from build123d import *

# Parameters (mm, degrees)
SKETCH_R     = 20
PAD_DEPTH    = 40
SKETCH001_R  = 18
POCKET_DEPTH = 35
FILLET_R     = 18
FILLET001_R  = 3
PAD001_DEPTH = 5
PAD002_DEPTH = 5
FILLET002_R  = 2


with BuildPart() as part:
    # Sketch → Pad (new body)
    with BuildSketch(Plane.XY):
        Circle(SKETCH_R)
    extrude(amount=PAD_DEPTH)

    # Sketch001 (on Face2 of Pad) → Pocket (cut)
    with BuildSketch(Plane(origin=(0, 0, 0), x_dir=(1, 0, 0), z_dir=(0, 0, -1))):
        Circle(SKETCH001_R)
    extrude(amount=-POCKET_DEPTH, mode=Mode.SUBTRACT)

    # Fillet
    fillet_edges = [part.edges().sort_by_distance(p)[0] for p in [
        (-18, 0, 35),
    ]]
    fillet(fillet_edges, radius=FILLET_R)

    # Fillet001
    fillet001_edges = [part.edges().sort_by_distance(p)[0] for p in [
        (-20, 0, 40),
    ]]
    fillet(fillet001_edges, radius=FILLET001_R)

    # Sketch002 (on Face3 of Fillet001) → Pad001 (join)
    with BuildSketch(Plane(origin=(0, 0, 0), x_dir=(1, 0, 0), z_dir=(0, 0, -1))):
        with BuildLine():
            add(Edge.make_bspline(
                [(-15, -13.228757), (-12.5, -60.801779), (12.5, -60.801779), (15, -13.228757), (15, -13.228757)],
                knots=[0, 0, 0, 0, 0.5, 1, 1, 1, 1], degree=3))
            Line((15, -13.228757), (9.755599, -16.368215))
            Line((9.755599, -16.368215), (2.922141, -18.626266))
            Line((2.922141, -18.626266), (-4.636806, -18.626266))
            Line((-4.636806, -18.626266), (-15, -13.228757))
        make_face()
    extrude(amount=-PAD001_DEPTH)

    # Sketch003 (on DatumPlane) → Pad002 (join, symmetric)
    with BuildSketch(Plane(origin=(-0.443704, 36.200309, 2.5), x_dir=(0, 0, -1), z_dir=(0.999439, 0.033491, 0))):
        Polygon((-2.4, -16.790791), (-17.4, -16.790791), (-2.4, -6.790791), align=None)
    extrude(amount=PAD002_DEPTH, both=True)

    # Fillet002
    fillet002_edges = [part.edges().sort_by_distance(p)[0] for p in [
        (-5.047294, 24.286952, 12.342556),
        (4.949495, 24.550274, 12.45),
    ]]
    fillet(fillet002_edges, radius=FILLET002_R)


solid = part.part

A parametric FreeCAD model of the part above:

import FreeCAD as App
import Part
import Sketcher

V = App.Vector


def edges_at(feature, points):
    """Names of the edges that pass closest to the given points."""
    edges = feature.Shape.Edges
    near = lambda p: min(range(len(edges)), key=lambda i: edges[i].distToShape(Part.Vertex(*p))[0])
    return sorted({f"Edge{near(p) + 1}" for p in points})

doc = App.newDocument("Part")
body = doc.addObject("PartDesign::Body", "Body")

# Sketch on XY plane
sketch1 = body.newObject("Sketcher::SketchObject", "Sketch")
sketch1.AttachmentSupport = (doc.getObject("XY_Plane"), [""])
sketch1.MapMode = "FlatFace"
sketch1.addGeometry(Part.Circle(V(0, 0, 0), V(0, 0, 1), 20), False)
sketch1.addConstraint(Sketcher.Constraint("Coincident", 0, 3, -1, 1))
sketch1.addConstraint(Sketcher.Constraint("Diameter", 0, 40.0))
pad1 = body.newObject("PartDesign::Pad", "Pad")
pad1.Profile = sketch1
pad1.Length = 40

# Sketch on XY plane
sketch2 = body.newObject("Sketcher::SketchObject", "Sketch001")
sketch2.AttachmentSupport = (doc.getObject("XY_Plane"), [""])
sketch2.MapMode = "FlatFace"
sketch2.addGeometry(Part.Circle(V(0, 0, 0), V(0, 0, 1), 18), False)
sketch2.addConstraint(Sketcher.Constraint("Coincident", 0, 3, -1, 1))
sketch2.addConstraint(Sketcher.Constraint("Diameter", 0, 36.0))
pocket1 = body.newObject("PartDesign::Pocket", "Pocket")
pocket1.Profile = sketch2
pocket1.Length = 35
pocket1.Reversed = True
doc.recompute()

fillet = body.newObject("PartDesign::Fillet", "Fillet")
fillet.Base = (pocket1, edges_at(pocket1, [(-18, 0, 35)]))
fillet.Radius = 18
doc.recompute()

fillet2 = body.newObject("PartDesign::Fillet", "Fillet001")
fillet2.Base = (fillet, edges_at(fillet, [(-20, 0, 40)]))
fillet2.Radius = 3

# Sketch on XY plane
sketch3 = body.newObject("Sketcher::SketchObject", "Sketch002")
sketch3.AttachmentSupport = (doc.getObject("XY_Plane"), [""])
sketch3.MapMode = "FlatFace"
sketch3.addGeometry(Part.BSplineCurve([V(-15, 13.228757, 0), V(-12.5, 60.801779, 0), V(12.5, 60.801779, 0), V(15, 13.228757, 0), V(15, 13.228757, 0)], [4, 1, 4], [0, 0.5, 1], False, 3, [1, 1, 1, 1, 1], False), False)
sketch3.addGeometry(Part.LineSegment(V(15, 13.228757, 0), V(9.755599, 16.368215, 0)), False)
sketch3.addGeometry(Part.LineSegment(V(9.755599, 16.368215, 0), V(2.922141, 18.626266, 0)), False)
sketch3.addGeometry(Part.LineSegment(V(2.922141, 18.626266, 0), V(-4.636806, 18.626266, 0)), False)
sketch3.addGeometry(Part.LineSegment(V(-4.636806, 18.626266, 0), V(-15, 13.228757, 0)), False)
sketch3.addConstraint(Sketcher.Constraint("Block", 0))
sketch3.addConstraint(Sketcher.Constraint("Coincident", 0, 2, 1, 1))
sketch3.addConstraint(Sketcher.Constraint("Coincident", 1, 2, 2, 1))
sketch3.addConstraint(Sketcher.Constraint("Coincident", 2, 2, 3, 1))
sketch3.addConstraint(Sketcher.Constraint("Coincident", 3, 2, 4, 1))
sketch3.addConstraint(Sketcher.Constraint("Coincident", 4, 2, 0, 1))
sketch3.addConstraint(Sketcher.Constraint("Horizontal", 3))
sketch3.addConstraint(Sketcher.Constraint("DistanceX", -1, 1, 1, 2, 9.755599))
sketch3.addConstraint(Sketcher.Constraint("Distance", 2, 7.19687))
sketch3.addConstraint(Sketcher.Constraint("DistanceX", 3, 2, 3, 1, 7.558947))
sketch3.addConstraint(Sketcher.Constraint("DistanceX", -1, 1, 2, 2, 2.922141))
sketch3.addConstraint(Sketcher.Constraint("DistanceY", 4, 2, 3, 2, 5.397509))
pad2 = body.newObject("PartDesign::Pad", "Pad001")
pad2.Profile = sketch3
pad2.Length = 5

# Sketch on an angled plane
sketch4 = body.newObject("Sketcher::SketchObject", "Sketch003")
sketch4.Placement = App.Placement(V(-0.443704, 36.200309, 2.5), App.Rotation(V(0, 0, -1), V(-0.033491001, 0.999439019, 0), V(0.999439019, 0.033491001, 0), "ZXY"))
sketch4.addGeometry(Part.LineSegment(V(-17.4, -16.790791, 0), V(-2.4, -16.790791, 0)), False)
sketch4.addGeometry(Part.LineSegment(V(-2.4, -16.790791, 0), V(-2.4, -6.790791, 0)), False)
sketch4.addGeometry(Part.LineSegment(V(-2.4, -6.790791, 0), V(-17.4, -16.790791, 0)), False)
sketch4.addConstraint(Sketcher.Constraint("Coincident", 0, 2, 1, 1))
sketch4.addConstraint(Sketcher.Constraint("Coincident", 1, 2, 2, 1))
sketch4.addConstraint(Sketcher.Constraint("Coincident", 2, 2, 0, 1))
sketch4.addConstraint(Sketcher.Constraint("Horizontal", 0))
sketch4.addConstraint(Sketcher.Constraint("Vertical", 1))
sketch4.addConstraint(Sketcher.Constraint("DistanceX", 0, 1, 0, 2, 15.0))
sketch4.addConstraint(Sketcher.Constraint("DistanceY", 1, 1, 1, 2, 10.0))
sketch4.addConstraint(Sketcher.Constraint("DistanceX", 0, 2, -1, 1, 2.4))
sketch4.addConstraint(Sketcher.Constraint("DistanceY", 0, 2, -1, 1, 16.790791))
pad3 = body.newObject("PartDesign::Pad", "Pad002")
pad3.Profile = sketch4
pad3.Length = 10
pad3.Midplane = True
doc.recompute()

fillet3 = body.newObject("PartDesign::Fillet", "Fillet002")
fillet3.Base = (pad3, edges_at(pad3, [(-5.047, 24.287, 12.343), (4.949, 24.55, 12.45)]))
fillet3.Radius = 2

doc.recompute()
